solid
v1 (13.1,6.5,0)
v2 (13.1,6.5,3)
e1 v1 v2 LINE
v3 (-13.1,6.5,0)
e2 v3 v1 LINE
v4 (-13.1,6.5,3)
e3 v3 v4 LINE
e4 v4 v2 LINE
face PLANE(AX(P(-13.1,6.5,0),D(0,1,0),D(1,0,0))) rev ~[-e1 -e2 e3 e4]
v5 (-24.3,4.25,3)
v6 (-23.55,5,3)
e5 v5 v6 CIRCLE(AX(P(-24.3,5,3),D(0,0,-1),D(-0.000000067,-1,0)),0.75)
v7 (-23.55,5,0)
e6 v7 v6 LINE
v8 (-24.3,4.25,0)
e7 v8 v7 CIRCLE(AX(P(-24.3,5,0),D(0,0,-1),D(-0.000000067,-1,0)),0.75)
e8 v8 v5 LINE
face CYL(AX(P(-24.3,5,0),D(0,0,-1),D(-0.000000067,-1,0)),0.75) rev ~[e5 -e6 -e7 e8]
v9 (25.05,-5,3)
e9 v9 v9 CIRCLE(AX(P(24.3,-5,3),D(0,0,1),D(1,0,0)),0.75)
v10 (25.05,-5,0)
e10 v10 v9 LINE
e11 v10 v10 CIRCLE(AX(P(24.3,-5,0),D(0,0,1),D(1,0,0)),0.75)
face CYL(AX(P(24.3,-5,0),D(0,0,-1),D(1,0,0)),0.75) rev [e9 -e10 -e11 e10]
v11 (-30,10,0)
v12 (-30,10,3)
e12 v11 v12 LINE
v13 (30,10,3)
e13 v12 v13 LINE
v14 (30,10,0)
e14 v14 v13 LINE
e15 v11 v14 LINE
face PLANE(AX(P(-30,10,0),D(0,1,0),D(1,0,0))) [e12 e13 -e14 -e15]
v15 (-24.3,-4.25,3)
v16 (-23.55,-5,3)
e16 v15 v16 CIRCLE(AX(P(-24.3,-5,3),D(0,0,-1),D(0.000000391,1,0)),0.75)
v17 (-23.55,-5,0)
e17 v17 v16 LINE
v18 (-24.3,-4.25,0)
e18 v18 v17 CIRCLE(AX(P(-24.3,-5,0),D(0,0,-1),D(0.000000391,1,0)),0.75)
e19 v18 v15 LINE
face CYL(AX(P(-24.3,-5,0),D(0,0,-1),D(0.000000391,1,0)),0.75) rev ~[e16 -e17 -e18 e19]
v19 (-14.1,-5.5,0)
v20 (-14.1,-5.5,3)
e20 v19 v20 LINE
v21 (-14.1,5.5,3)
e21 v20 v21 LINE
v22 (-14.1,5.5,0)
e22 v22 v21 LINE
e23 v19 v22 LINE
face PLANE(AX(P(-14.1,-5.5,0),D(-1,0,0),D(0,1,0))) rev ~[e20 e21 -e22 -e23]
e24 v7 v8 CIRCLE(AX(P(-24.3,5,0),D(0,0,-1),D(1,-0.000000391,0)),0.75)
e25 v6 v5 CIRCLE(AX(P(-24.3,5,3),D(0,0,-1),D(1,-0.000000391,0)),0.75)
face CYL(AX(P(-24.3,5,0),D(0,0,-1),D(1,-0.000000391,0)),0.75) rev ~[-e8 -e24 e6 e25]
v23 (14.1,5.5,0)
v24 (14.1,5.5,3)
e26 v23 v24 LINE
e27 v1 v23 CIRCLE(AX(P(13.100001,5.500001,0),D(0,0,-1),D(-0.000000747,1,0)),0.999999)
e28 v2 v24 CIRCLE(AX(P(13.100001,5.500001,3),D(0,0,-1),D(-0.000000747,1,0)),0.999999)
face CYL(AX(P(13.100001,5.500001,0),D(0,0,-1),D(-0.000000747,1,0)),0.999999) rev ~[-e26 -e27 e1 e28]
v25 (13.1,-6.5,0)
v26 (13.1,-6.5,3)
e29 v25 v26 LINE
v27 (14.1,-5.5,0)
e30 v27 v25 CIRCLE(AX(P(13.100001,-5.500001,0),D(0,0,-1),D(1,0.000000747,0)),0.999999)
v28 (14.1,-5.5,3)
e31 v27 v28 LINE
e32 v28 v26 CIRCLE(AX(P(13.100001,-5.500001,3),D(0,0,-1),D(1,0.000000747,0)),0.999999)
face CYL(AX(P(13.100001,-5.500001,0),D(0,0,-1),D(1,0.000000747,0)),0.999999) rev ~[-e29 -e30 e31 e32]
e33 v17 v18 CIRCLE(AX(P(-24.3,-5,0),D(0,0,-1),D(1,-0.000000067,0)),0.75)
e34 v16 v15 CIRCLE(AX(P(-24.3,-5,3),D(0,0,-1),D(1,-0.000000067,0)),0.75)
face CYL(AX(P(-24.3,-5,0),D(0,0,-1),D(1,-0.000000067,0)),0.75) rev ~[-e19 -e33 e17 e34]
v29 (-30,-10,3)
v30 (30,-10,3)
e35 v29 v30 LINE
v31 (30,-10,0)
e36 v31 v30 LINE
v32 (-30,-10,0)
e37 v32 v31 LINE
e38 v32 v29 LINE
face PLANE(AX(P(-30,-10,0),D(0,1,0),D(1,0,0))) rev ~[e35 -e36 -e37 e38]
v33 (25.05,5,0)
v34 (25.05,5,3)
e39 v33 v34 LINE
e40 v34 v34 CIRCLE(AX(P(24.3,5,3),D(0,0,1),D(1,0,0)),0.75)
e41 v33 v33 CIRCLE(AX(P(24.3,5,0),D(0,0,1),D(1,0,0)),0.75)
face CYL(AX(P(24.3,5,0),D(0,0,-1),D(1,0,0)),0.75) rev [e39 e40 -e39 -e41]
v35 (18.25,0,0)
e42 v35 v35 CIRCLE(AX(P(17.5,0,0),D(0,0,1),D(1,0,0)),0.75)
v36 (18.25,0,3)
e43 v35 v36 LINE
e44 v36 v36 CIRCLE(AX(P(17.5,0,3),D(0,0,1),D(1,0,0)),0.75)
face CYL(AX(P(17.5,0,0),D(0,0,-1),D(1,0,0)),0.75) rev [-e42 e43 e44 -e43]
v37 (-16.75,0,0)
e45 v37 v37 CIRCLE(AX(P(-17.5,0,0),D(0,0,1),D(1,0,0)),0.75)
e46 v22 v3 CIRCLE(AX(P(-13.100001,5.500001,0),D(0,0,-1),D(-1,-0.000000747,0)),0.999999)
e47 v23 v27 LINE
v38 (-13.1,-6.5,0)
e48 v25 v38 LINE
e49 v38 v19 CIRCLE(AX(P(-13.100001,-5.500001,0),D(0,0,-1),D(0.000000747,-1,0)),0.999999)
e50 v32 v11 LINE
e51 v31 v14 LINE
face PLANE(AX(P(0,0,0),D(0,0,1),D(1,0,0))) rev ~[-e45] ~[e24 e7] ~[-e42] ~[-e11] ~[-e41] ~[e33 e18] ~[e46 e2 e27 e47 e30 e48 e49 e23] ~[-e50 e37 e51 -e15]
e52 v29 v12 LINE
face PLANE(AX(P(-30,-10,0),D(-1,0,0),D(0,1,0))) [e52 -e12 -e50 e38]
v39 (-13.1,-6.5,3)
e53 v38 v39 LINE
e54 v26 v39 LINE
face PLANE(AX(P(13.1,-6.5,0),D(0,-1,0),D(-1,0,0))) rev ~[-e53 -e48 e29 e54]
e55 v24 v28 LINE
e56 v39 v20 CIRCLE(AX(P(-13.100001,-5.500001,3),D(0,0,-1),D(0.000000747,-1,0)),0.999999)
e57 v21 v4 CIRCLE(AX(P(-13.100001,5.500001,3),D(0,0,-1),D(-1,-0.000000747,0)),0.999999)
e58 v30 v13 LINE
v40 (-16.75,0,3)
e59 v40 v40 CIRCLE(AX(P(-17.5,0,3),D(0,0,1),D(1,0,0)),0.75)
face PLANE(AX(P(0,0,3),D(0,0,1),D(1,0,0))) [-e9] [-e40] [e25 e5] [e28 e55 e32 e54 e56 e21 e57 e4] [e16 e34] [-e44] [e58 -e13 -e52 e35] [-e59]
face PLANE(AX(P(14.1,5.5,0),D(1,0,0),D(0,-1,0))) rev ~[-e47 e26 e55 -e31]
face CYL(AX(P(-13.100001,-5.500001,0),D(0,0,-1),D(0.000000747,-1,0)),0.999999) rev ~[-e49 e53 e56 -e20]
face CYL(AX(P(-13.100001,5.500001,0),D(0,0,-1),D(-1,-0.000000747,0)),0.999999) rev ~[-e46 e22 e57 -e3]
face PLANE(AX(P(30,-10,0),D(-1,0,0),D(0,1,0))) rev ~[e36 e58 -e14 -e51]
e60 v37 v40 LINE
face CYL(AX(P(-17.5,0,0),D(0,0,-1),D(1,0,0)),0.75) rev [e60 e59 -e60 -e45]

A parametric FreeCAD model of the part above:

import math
import FreeCAD as App
import Part
import Sketcher

V = App.Vector


def add_polygon(sketch, points):
    """Adds a closed chain of lines whose ends are joined by coincident constraints."""
    first, n = sketch.GeometryCount, len(points)
    for a, b in zip(points, points[1:] + points[:1]):
        sketch.addGeometry(Part.LineSegment(App.Vector(*a, 0), App.Vector(*b, 0)), False)
    for i in range(n):
        sketch.addConstraint(Sketcher.Constraint("Coincident", first + i, 2, first + (i + 1) % n, 1))

doc = App.newDocument("Part")
body = doc.addObject("PartDesign::Body", "Body")

# Sketch on XY plane
sketch1 = doc.addObject("Sketcher::SketchObject", "Sketch")
body.addObject(sketch1)
sketch1.AttachmentSupport = (doc.XY_Plane, [""])
sketch1.MapMode = "FlatFace"
add_polygon(sketch1, [(-30, 10), (-30, -10), (30, -10), (30, 10)])  # lines 0-3
sketch1.addGeometry(Part.ArcOfCircle(Part.Circle(V(-24.3, -5, 0), V(0, 0, 1), 0.75), math.radians(0.000022), math.radians(89.999978)), False)  # 4
sketch1.addGeometry(Part.ArcOfCircle(Part.Circle(V(-24.3, -5, 0), V(0, 0, 1), 0.75), math.radians(90.000004), math.radians(359.999996)), False)  # 5
sketch1.addGeometry(Part.Circle(V(24.3, -5, 0), V(0, 0, 1), 0.75), False)  # 6
sketch1.addGeometry(Part.Circle(V(-17.5, 0, 0), V(0, 0, 1), 0.75), False)  # 7
sketch1.addGeometry(Part.LineSegment(V(-14.1, -5.5, 0), V(-14.1, 5.5, 0)), False)  # 8
sketch1.addGeometry(Part.ArcOfCircle(Part.Circle(V(-13.100001, 5.500001, 0), V(0, 0, 1), 0.999999), math.radians(89.999957), math.radians(180.000043)), False)  # 9
sketch1.addGeometry(Part.LineSegment(V(-13.1, 6.5, 0), V(13.1, 6.5, 0)), False)  # 10
sketch1.addGeometry(Part.ArcOfCircle(Part.Circle(V(13.100001, 5.500001, 0), V(0, 0, 1), 0.999999), math.radians(-0.000043), math.radians(90.000043)), False)  # 11
sketch1.addGeometry(Part.LineSegment(V(14.1, 5.5, 0), V(14.1, -5.5, 0)), False)  # 12
sketch1.addGeometry(Part.ArcOfCircle(Part.Circle(V(13.100001, -5.500001, 0), V(0, 0, 1), 0.999999), math.radians(-90.000043), math.radians(0.000043)), False)  # 13
sketch1.addGeometry(Part.LineSegment(V(13.1, -6.5, 0), V(-13.1, -6.5, 0)), False)  # 14
sketch1.addGeometry(Part.ArcOfCircle(Part.Circle(V(-13.100001, -5.500001, 0), V(0, 0, 1), 0.999999), math.radians(179.999957), math.radians(270.000043)), False)  # 15
sketch1.addGeometry(Part.ArcOfCircle(Part.Circle(V(-24.3, 5, 0), V(0, 0, 1), 0.75), math.radians(0.000004), math.radians(269.999996)), False)  # 16
sketch1.addGeometry(Part.ArcOfCircle(Part.Circle(V(-24.3, 5, 0), V(0, 0, 1), 0.75), math.radians(-89.999978), math.radians(-0.000022)), False)  # 17
sketch1.addGeometry(Part.Circle(V(17.5, 0, 0), V(0, 0, 1), 0.75), False)  # 18
sketch1.addGeometry(Part.Circle(V(24.3, 5, 0), V(0, 0, 1), 0.75), False)  # 19
sketch1.addConstraint(Sketcher.Constraint("Tangent", 4, 1, 5, 2))
sketch1.addConstraint(Sketcher.Constraint("Coincident", 5, 1, 4, 2))
sketch1.addConstraint(Sketcher.Constraint("Tangent", 8, 2, 9, 2))
sketch1.addConstraint(Sketcher.Constraint("Tangent", 9, 1, 10, 1))
sketch1.addConstraint(Sketcher.Constraint("Tangent", 10, 2, 11, 2))
sketch1.addConstraint(Sketcher.Constraint("Tangent", 11, 1, 12, 1))
sketch1.addConstraint(Sketcher.Constraint("Tangent", 12, 2, 13, 2))
sketch1.addConstraint(Sketcher.Constraint("Tangent", 13, 1, 14, 1))
sketch1.addConstraint(Sketcher.Constraint("Tangent", 14, 2, 15, 2))
sketch1.addConstraint(Sketcher.Constraint("Tangent", 15, 1, 8, 1))
sketch1.addConstraint(Sketcher.Constraint("Tangent", 16, 1, 17, 2))
sketch1.addConstraint(Sketcher.Constraint("Coincident", 17, 1, 16, 2))
sketch1.addConstraint(Sketcher.Constraint("Vertical", 0))
sketch1.addConstraint(Sketcher.Constraint("Horizontal", 1))
sketch1.addConstraint(Sketcher.Constraint("Vertical", 2))
sketch1.addConstraint(Sketcher.Constraint("Horizontal", 3))
sketch1.addConstraint(Sketcher.Constraint("Vertical", 8))
sketch1.addConstraint(Sketcher.Constraint("Horizontal", 10))
sketch1.addConstraint(Sketcher.Constraint("Vertical", 12))
sketch1.addConstraint(Sketcher.Constraint("Horizontal", 14))
sketch1.addConstraint(Sketcher.Constraint("Equal", 5, 6))
sketch1.addConstraint(Sketcher.Constraint("Equal", 6, 7))
sketch1.addConstraint(Sketcher.Constraint("Equal", 9, 11))
sketch1.addConstraint(Sketcher.Constraint("Equal", 11, 13))
sketch1.addConstraint(Sketcher.Constraint("Equal", 13, 15))
sketch1.addConstraint(Sketcher.Constraint("Equal", 7, 16))
sketch1.addConstraint(Sketcher.Constraint("Equal", 17, 18))
sketch1.addConstraint(Sketcher.Constraint("Equal", 18, 19))
sketch1.addConstraint(Sketcher.Constraint("Symmetric", 9, 3, 13, 3, -1, 1))
sketch1.addConstraint(Sketcher.Constraint("Symmetric", 6, 3, 16, 3, -1, 1))
sketch1.addConstraint(Sketcher.Constraint("Symmetric", 7, 3, 18, 3, -1, 1))
sketch1.addConstraint(Sketcher.Constraint("Symmetric", 4, 3, 19, 3, -1, 1))
sketch1.addConstraint(Sketcher.Constraint("Symmetric", 0, 2, 2, 2, -1, 1))
sketch1.addConstraint(Sketcher.Constraint("Symmetric", 4, 3, 6, 3, -2))
sketch1.addConstraint(Sketcher.Constraint("PointOnObject", 7, 3, -1))
sketch1.addConstraint(Sketcher.Constraint("Horizontal", 6, 3, 4, 1))
sketch1.addConstraint(Sketcher.Constraint("Horizontal", 19, 3, 16, 1))
sketch1.addConstraint(Sketcher.Constraint("Vertical", 17, 3, 5, 1))
sketch1.addConstraint(Sketcher.Constraint("Vertical", 5, 1, 17, 1))
sketch1.addConstraint(Sketcher.Constraint("Radius", 9, 0.999999))
sketch1.addConstraint(Sketcher.Constraint("Diameter", 6, 1.5))
sketch1.addConstraint(Sketcher.Constraint("DistanceX", 1, 1, 1, 2, 60.0))
sketch1.addConstraint(Sketcher.Constraint("DistanceY", 0, 2, 0, 1, 20.0))
sketch1.addConstraint(Sketcher.Constraint("DistanceY", 8, 1, 8, 2, 11.0))
sketch1.addConstraint(Sketcher.Constraint("DistanceX", 10, 1, 10, 2, 26.2))
sketch1.addConstraint(Sketcher.Constraint("DistanceY", 4, 3, -1, 1, 5.0))
sketch1.addConstraint(Sketcher.Constraint("DistanceX", 4, 3, -1, 1, 24.3))
sketch1.addConstraint(Sketcher.Constraint("DistanceX", 7, 3, -1, 1, 17.5))
pad1 = doc.addObject("PartDesign::Pad", "Pad")
body.addObject(pad1)
pad1.Profile = sketch1
pad1.Length = 3

doc.recompute()
